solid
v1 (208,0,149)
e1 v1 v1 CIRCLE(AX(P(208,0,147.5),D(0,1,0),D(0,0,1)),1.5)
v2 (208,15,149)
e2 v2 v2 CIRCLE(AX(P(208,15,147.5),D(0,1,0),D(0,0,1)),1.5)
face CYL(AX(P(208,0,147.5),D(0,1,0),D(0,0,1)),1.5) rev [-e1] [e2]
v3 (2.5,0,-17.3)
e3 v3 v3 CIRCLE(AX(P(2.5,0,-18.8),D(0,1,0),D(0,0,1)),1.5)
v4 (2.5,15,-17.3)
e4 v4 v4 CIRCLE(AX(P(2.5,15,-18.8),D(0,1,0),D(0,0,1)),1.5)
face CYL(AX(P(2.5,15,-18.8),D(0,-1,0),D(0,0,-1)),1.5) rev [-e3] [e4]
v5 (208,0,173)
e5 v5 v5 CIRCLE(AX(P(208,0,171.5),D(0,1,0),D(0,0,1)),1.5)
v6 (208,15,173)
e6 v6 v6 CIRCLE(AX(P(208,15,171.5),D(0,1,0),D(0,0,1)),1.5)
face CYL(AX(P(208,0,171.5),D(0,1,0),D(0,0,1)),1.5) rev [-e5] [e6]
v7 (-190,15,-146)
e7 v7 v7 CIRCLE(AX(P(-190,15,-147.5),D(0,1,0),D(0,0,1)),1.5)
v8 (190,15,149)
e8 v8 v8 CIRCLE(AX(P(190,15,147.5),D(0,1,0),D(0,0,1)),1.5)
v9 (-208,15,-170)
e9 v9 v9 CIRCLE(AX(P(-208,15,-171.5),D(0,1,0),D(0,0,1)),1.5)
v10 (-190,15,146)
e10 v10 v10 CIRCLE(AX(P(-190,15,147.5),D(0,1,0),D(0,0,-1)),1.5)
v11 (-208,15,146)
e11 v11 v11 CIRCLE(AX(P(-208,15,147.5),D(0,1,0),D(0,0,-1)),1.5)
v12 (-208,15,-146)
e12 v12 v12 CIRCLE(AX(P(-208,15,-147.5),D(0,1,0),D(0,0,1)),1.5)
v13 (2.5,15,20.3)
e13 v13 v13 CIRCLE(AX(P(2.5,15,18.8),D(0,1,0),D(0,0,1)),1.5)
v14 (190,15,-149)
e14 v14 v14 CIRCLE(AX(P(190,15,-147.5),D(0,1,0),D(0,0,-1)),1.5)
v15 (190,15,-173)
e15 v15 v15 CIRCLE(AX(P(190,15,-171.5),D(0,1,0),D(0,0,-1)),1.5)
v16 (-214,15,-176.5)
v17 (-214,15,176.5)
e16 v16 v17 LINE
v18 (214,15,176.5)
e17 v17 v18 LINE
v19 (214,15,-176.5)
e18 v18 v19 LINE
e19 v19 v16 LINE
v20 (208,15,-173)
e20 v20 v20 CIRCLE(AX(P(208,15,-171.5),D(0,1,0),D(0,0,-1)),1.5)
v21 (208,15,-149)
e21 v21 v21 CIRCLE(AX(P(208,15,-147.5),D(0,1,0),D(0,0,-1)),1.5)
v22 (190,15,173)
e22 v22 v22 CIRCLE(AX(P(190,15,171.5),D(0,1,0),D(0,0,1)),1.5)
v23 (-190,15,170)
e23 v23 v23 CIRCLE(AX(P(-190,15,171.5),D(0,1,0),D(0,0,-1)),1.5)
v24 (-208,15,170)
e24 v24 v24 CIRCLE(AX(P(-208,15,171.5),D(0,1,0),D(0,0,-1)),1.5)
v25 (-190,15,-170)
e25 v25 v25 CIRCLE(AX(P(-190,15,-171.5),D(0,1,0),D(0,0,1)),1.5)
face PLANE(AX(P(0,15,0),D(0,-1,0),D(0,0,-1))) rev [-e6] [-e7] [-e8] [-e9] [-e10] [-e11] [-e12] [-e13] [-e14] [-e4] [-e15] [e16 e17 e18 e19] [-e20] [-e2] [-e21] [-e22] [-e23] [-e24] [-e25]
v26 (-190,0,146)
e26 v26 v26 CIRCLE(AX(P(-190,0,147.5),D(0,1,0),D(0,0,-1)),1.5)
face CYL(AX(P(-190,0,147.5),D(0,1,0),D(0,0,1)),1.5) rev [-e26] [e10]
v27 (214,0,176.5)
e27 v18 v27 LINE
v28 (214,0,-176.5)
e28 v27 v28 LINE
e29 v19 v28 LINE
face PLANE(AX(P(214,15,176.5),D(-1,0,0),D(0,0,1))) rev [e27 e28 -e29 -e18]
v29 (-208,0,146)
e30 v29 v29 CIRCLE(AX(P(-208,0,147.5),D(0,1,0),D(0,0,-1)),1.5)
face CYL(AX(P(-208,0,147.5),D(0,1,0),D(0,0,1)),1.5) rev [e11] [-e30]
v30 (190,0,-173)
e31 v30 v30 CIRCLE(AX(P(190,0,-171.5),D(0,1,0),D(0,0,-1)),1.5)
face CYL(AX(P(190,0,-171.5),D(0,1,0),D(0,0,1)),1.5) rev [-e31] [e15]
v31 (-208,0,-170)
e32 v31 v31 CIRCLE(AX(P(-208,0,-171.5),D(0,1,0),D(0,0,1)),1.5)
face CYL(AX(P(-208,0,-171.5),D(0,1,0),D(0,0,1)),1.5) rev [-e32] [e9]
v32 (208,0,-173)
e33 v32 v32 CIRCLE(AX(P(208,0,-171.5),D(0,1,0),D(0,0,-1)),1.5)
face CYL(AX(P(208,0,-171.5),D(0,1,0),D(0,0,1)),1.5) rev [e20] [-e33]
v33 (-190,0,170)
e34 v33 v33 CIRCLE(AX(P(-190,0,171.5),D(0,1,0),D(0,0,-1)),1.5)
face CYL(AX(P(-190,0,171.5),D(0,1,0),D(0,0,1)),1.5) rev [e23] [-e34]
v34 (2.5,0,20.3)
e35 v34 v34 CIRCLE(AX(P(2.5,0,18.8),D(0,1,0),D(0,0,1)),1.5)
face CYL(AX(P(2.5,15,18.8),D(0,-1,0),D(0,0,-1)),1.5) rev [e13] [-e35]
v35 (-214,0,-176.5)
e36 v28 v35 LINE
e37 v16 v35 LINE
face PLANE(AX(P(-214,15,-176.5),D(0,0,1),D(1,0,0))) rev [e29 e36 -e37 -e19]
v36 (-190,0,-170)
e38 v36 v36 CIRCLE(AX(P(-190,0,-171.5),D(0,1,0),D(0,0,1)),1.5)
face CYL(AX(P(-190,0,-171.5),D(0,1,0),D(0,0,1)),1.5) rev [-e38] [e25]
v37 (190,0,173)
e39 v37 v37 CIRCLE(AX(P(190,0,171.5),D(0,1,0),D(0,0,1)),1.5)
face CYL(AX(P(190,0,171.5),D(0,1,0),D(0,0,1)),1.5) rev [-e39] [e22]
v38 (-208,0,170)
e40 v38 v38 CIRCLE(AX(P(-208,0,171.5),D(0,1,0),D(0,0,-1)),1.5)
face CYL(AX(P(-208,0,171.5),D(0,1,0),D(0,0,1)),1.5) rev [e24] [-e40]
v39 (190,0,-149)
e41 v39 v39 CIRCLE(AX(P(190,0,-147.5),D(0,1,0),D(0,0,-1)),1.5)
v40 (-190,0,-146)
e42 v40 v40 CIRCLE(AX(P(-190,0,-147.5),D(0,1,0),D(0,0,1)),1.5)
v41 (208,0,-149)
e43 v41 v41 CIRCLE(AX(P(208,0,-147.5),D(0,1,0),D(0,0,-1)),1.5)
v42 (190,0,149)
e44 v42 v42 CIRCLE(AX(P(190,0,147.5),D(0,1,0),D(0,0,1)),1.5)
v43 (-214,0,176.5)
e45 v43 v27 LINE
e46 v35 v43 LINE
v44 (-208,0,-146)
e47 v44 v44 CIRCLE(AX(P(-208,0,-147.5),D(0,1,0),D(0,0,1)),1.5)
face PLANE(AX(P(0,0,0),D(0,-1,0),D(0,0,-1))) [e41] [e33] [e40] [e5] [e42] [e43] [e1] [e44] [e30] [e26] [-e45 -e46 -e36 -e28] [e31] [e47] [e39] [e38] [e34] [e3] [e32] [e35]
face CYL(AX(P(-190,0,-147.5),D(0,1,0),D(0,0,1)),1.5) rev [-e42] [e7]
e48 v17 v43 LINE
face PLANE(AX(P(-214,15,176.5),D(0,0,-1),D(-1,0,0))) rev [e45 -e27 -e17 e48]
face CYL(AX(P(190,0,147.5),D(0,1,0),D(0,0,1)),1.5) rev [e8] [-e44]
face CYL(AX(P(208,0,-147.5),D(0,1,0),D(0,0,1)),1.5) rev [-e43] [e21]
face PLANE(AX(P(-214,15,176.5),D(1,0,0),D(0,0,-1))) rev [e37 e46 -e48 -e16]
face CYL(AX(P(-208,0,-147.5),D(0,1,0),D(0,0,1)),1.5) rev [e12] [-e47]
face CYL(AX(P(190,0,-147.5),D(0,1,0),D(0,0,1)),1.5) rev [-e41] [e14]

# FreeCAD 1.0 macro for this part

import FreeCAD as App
import Part
import Sketcher
Q = App.Units.Quantity

doc = App.newDocument("Part")
body = doc.addObject("PartDesign::Body", "Body")

# Sketch on XZ plane
sketch1 = body.newObject("Sketcher::SketchObject", "Sketch")
sketch1.AttachmentSupport = (doc.getObject("XZ_Plane"), [""])
sketch1.MapMode = "FlatFace"
sketch1.addGeometry([
    Part.LineSegment(App.Vector(-214, -176.5, 0), App.Vector(-214, 176.5, 0)),  # 0
    Part.LineSegment(App.Vector(-214, 176.5, 0), App.Vector(214, 176.5, 0)),  # 1
    Part.LineSegment(App.Vector(214, 176.5, 0), App.Vector(214, -176.5, 0)),  # 2
    Part.LineSegment(App.Vector(214, -176.5, 0), App.Vector(-214, -176.5, 0)),  # 3
    Part.Circle(App.Vector(2.5, 18.8, 0), App.Vector(0, 0, 1), 1.5),  # 4
    Part.Circle(App.Vector(2.5, -18.8, 0), App.Vector(0, 0, 1), 1.5),  # 5
], False)
sketch1.addConstraint([
    Sketcher.Constraint("Coincident", 0, 2, 1, 1),
    Sketcher.Constraint("Coincident", 1, 2, 2, 1),
    Sketcher.Constraint("Coincident", 2, 2, 3, 1),
    Sketcher.Constraint("Coincident", 3, 2, 0, 1),
    Sketcher.Constraint("Vertical", 0),
    Sketcher.Constraint("Horizontal", 1),
    Sketcher.Constraint("Vertical", 2),
    Sketcher.Constraint("Horizontal", 3),
    Sketcher.Constraint("Equal", 4, 5),
    Sketcher.Constraint("Symmetric", 0, 2, 2, 2, -1, 1),
    Sketcher.Constraint("Symmetric", 4, 3, 5, 3, -1),
    Sketcher.Constraint("Diameter", 4, Q("3 mm")),
    Sketcher.Constraint("DistanceX", 1, 1, 1, 2, Q("428 mm")),
    Sketcher.Constraint("DistanceY", 0, 1, 0, 2, Q("353 mm")),
    Sketcher.Constraint("DistanceX", -1, 1, 4, 3, Q("2.5 mm")),
    Sketcher.Constraint("DistanceY", -1, 1, 4, 3, Q("18.8 mm")),
])
pad1 = body.newObject("PartDesign::Pad", "Pad")
pad1.Profile = sketch1
pad1.Length = 15
pad1.Reversed = True

# Sketch on XZ plane
sketch2 = body.newObject("Sketcher::SketchObject", "Sketch001")
sketch2.AttachmentSupport = (doc.getObject("XZ_Plane"), [""])
sketch2.MapMode = "FlatFace"
sketch2.AttachmentOffset = App.Placement(App.Vector(0, 0, -15), App.Rotation())
sketch2.addGeometry([
    Part.Circle(App.Vector(208, 171.5, 0), App.Vector(0, 0, 1), 1.5),  # 0
    Part.Circle(App.Vector(190, 171.5, 0), App.Vector(0, 0, 1), 1.5),  # 1
    Part.Circle(App.Vector(190, 147.5, 0), App.Vector(0, 0, 1), 1.5),  # 2
    Part.Circle(App.Vector(208, 147.5, 0), App.Vector(0, 0, 1), 1.5),  # 3
    Part.Circle(App.Vector(-208, 171.5, 0), App.Vector(0, 0, 1), 1.5),  # 4
    Part.Circle(App.Vector(-190, 171.5, 0), App.Vector(0, 0, 1), 1.5),  # 5
    Part.Circle(App.Vector(-208, 147.5, 0), App.Vector(0, 0, 1), 1.5),  # 6
    Part.Circle(App.Vector(-190, 147.5, 0), App.Vector(0, 0, 1), 1.5),  # 7
    Part.Circle(App.Vector(-208, -171.5, 0), App.Vector(0, 0, 1), 1.5),  # 8
    Part.Circle(App.Vector(-190, -171.5, 0), App.Vector(0, 0, 1), 1.5),  # 9
    Part.Circle(App.Vector(-190, -147.5, 0), App.Vector(0, 0, 1), 1.5),  # 10
    Part.Circle(App.Vector(-208, -147.5, 0), App.Vector(0, 0, 1), 1.5),  # 11
    Part.Circle(App.Vector(208, -171.5, 0), App.Vector(0, 0, 1), 1.5),  # 12
    Part.Circle(App.Vector(190, -171.5, 0), App.Vector(0, 0, 1), 1.5),  # 13
    Part.Circle(App.Vector(190, -147.5, 0), App.Vector(0, 0, 1), 1.5),  # 14
    Part.Circle(App.Vector(208, -147.5, 0), App.Vector(0, 0, 1), 1.5),  # 15
], False)
sketch2.addConstraint([
    Sketcher.Constraint("Equal", 0, 1),
    Sketcher.Constraint("Equal", 1, 2),
    Sketcher.Constraint("Equal", 2, 3),
    Sketcher.Constraint("Equal", 3, 4),
    Sketcher.Constraint("Equal", 4, 5),
    Sketcher.Constraint("Equal", 5, 6),
    Sketcher.Constraint("Equal", 6, 7),
    Sketcher.Constraint("Equal", 7, 8),
    Sketcher.Constraint("Equal", 8, 9),
    Sketcher.Constraint("Equal", 9, 10),
    Sketcher.Constraint("Equal", 10, 11),
    Sketcher.Constraint("Equal", 11, 12),
    Sketcher.Constraint("Equal", 12, 13),
    Sketcher.Constraint("Equal", 13, 14),
    Sketcher.Constraint("Equal", 14, 15),
    Sketcher.Constraint("Symmetric", 0, 3, 8, 3, -1, 1),
    Sketcher.Constraint("Symmetric", 1, 3, 9, 3, -1, 1),
    Sketcher.Constraint("Symmetric", 2, 3, 10, 3, -1, 1),
    Sketcher.Constraint("Symmetric", 3, 3, 11, 3, -1, 1),
    Sketcher.Constraint("Symmetric", 4, 3, 12, 3, -1, 1),
    Sketcher.Constraint("Symmetric", 5, 3, 13, 3, -1, 1),
    Sketcher.Constraint("Symmetric", 7, 3, 14, 3, -1, 1),
    Sketcher.Constraint("Symmetric", 6, 3, 15, 3, -1, 1),
    Sketcher.Constraint("Symmetric", 0, 3, 4, 3, -2),
    Sketcher.Constraint("Symmetric", 1, 3, 5, 3, -2),
    Sketcher.Constraint("Symmetric", 3, 3, 6, 3, -2),
    Sketcher.Constraint("Symmetric", 2, 3, 7, 3, -2),
    Sketcher.Constraint("Horizontal", 0, 3, 1, 3),
    Sketcher.Constraint("Horizontal", 2, 3, 3, 3),
    Sketcher.Constraint("Vertical", 1, 3, 2, 3),
    Sketcher.Constraint("Vertical", 0, 3, 3, 3),
    Sketcher.Constraint("Diameter", 0, Q("3 mm")),
    Sketcher.Constraint("DistanceX", -1, 1, 0, 3, Q("208 mm")),
    Sketcher.Constraint("DistanceX", -1, 1, 1, 3, Q("190 mm")),
    Sketcher.Constraint("DistanceY", 2, 3, 1, 3, Q("24 mm")),
    Sketcher.Constraint("DistanceY", 8, 3, 6, 3, Q("319 mm")),
])
pocket1 = body.newObject("PartDesign::Pocket", "Pocket")
pocket1.Profile = sketch2
pocket1.Type = "ThroughAll"
pocket1.Reversed = True

doc.recompute()
